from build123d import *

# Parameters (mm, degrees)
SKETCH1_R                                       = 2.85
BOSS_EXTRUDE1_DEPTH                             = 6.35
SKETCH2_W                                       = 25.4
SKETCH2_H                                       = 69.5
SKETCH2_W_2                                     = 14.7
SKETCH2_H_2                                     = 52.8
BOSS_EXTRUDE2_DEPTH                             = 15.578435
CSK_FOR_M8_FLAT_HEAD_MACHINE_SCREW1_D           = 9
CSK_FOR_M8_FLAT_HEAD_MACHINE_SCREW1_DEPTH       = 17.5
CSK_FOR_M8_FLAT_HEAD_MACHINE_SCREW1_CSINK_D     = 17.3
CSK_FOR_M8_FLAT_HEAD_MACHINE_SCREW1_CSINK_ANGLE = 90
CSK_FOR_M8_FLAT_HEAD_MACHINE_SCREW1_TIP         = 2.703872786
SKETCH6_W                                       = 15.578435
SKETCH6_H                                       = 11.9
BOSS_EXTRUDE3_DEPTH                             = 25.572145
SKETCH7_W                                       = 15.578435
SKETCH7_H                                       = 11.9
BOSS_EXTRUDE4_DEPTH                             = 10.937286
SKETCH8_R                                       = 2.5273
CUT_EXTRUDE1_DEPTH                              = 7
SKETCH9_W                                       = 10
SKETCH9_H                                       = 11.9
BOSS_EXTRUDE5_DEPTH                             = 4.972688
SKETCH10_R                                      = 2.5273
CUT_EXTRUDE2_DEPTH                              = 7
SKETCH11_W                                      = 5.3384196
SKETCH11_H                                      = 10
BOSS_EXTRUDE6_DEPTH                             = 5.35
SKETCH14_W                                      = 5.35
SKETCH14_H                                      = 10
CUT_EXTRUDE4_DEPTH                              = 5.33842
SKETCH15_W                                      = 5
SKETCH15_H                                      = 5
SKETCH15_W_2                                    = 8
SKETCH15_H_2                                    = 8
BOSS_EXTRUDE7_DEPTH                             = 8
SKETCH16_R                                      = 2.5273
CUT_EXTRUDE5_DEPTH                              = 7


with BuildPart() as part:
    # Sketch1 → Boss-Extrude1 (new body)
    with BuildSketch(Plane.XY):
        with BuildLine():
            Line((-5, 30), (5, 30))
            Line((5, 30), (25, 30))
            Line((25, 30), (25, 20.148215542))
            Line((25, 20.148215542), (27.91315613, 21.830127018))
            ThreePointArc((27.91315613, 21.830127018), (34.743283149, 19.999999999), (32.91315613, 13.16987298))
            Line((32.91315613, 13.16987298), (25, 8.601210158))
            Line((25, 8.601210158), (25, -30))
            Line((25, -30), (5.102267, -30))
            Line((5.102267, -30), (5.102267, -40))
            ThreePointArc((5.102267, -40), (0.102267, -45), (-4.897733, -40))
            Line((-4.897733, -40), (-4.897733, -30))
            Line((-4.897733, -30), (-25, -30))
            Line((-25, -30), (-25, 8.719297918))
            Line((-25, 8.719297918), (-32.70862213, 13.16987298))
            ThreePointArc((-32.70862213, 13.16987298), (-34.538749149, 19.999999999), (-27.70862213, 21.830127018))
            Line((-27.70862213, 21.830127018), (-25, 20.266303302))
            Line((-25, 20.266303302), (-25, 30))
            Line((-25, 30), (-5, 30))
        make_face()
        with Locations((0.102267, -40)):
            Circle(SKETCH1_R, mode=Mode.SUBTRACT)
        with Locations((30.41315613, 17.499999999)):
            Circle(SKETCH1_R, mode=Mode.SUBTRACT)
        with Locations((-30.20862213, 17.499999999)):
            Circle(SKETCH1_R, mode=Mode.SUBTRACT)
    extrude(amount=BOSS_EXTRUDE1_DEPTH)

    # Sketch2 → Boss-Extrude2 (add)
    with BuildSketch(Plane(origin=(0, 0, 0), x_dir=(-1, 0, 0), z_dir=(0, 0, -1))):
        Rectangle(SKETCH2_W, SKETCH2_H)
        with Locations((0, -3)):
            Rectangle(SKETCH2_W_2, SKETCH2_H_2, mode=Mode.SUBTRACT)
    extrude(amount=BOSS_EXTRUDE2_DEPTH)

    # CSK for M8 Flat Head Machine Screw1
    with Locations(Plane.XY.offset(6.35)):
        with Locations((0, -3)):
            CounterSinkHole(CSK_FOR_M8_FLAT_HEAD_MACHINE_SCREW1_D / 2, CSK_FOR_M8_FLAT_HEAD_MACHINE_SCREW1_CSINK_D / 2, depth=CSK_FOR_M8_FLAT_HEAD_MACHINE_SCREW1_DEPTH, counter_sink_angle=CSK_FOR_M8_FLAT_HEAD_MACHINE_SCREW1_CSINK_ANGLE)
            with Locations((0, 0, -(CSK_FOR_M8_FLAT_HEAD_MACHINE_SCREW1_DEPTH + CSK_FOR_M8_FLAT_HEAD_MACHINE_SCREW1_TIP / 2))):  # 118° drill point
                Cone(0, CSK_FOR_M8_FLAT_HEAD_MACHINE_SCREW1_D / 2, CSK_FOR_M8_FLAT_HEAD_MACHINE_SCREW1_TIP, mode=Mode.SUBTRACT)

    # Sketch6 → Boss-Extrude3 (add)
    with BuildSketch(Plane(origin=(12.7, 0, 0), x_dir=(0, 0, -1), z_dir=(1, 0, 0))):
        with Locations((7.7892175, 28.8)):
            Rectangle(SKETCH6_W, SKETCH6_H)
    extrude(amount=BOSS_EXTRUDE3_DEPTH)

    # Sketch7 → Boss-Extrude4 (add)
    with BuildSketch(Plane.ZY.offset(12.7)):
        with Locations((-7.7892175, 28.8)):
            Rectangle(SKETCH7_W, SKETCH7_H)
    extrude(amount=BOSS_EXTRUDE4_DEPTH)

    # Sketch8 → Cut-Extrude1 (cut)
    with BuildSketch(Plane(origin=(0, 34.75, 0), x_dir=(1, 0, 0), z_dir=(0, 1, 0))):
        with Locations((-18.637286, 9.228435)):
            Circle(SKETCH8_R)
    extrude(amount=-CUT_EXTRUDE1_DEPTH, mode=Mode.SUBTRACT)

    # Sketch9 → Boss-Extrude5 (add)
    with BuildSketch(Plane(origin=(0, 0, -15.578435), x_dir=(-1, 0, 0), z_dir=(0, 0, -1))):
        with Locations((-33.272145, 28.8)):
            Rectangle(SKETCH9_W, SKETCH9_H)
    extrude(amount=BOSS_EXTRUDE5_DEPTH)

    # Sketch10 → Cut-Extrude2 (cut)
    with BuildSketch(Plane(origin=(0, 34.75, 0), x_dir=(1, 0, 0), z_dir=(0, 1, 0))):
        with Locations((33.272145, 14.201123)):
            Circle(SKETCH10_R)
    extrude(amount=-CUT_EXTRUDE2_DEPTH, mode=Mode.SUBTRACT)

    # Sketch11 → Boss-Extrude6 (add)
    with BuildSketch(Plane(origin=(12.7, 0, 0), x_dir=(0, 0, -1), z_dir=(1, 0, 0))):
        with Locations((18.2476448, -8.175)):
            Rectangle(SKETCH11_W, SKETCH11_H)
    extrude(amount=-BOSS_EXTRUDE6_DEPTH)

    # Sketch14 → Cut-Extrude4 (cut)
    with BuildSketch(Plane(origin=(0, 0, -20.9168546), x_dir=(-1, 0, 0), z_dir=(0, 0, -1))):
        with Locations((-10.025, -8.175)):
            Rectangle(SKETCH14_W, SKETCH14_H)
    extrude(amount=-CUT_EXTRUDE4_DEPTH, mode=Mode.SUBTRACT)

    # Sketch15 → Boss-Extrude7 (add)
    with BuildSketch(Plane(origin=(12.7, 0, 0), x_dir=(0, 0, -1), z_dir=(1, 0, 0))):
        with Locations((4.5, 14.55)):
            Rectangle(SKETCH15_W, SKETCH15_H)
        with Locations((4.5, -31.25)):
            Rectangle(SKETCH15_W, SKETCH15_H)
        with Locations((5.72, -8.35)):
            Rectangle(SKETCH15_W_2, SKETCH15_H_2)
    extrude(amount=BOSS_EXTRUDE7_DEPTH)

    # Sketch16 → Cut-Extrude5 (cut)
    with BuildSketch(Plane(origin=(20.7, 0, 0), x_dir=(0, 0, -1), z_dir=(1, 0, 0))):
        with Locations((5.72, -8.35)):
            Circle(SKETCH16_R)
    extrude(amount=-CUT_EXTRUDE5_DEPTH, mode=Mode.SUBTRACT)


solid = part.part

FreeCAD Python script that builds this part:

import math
import FreeCAD as App
import Part
import Sketcher
from FreeCAD import Vector
Q = App.Units.Quantity


def add_polygon(sketch, points):
    """Adds a closed chain of lines whose ends are joined by coincident constraints."""
    first, n = sketch.GeometryCount, len(points)
    for a, b in zip(points, points[1:] + points[:1]):
        sketch.addGeometry(Part.LineSegment(App.Vector(*a, 0), App.Vector(*b, 0)), False)
    for i in range(n):
        sketch.addConstraint(Sketcher.Constraint("Coincident", first + i, 2, first + (i + 1) % n, 1))

doc = App.newDocument("Part")
body = doc.addObject("PartDesign::Body", "Body")

# Sketch on XY plane
sketch1 = body.newObject("Sketcher::SketchObject", "Sketch")
sketch1.AttachmentSupport = (doc.getObject("XY_Plane"), [""])
sketch1.MapMode = "FlatFace"
sketch1.addGeometry([
    Part.LineSegment(Vector(25, 20.1, 0), Vector(25, 30, 0)),  # 0
    Part.LineSegment(Vector(25, 30, 0), Vector(-25, 30, 0)),  # 1
    Part.LineSegment(Vector(-25, 30, 0), Vector(-25, 20.3, 0)),  # 2
    Part.LineSegment(Vector(-25, 20.3, 0), Vector(-27.7, 21.8, 0)),  # 3
    Part.ArcOfCircle(Part.Circle(Vector(-30.2, 17.5, 0), Vector(0, 0, 1), 5), math.radians(60), math.radians(240)),  # 4
    Part.LineSegment(Vector(-32.7, 13.2, 0), Vector(-25, 8.7, 0)),  # 5
    Part.LineSegment(Vector(-25, 8.7, 0), Vector(-25, -30, 0)),  # 6
    Part.LineSegment(Vector(-25, -30, 0), Vector(-4.9, -30, 0)),  # 7
    Part.LineSegment(Vector(-4.9, -30, 0), Vector(-4.9, -40, 0)),  # 8
    Part.ArcOfCircle(Part.Circle(Vector(0.1, -40, 0), Vector(0, 0, 1), 5), math.radians(180), math.radians(360)),  # 9
    Part.LineSegment(Vector(5.1, -40, 0), Vector(5.1, -30, 0)),  # 10
    Part.LineSegment(Vector(5.1, -30, 0), Vector(25, -30, 0)),  # 11
    Part.LineSegment(Vector(25, -30, 0), Vector(25, 8.6, 0)),  # 12
    Part.LineSegment(Vector(25, 8.6, 0), Vector(32.9, 13.2, 0)),  # 13
    Part.ArcOfCircle(Part.Circle(Vector(30.4, 17.5, 0), Vector(0, 0, 1), 5), math.radians(-60), math.radians(120)),  # 14
    Part.LineSegment(Vector(27.9, 21.8, 0), Vector(25, 20.1, 0)),  # 15
    Part.Circle(Vector(0.1, -40, 0), Vector(0, 0, 1), 2.9),  # 16
    Part.Circle(Vector(30.4, 17.5, 0), Vector(0, 0, 1), 2.9),  # 17
    Part.Circle(Vector(-30.2, 17.5, 0), Vector(0, 0, 1), 2.9),  # 18
], False)
sketch1.addConstraint([
    Sketcher.Constraint("Coincident", 0, 2, 1, 1),
    Sketcher.Constraint("Coincident", 1, 2, 2, 1),
    Sketcher.Constraint("Coincident", 2, 2, 3, 1),
    Sketcher.Constraint("Tangent", 3, 2, 4, 1),
    Sketcher.Constraint("Tangent", 4, 2, 5, 1),
    Sketcher.Constraint("Coincident", 5, 2, 6, 1),
    Sketcher.Constraint("Coincident", 6, 2, 7, 1),
    Sketcher.Constraint("Coincident", 7, 2, 8, 1),
    Sketcher.Constraint("Tangent", 8, 2, 9, 1),
    Sketcher.Constraint("Tangent", 9, 2, 10, 1),
    Sketcher.Constraint("Coincident", 10, 2, 11, 1),
    Sketcher.Constraint("Coincident", 11, 2, 12, 1),
    Sketcher.Constraint("Coincident", 12, 2, 13, 1),
    Sketcher.Constraint("Tangent", 13, 2, 14, 1),
    Sketcher.Constraint("Tangent", 14, 2, 15, 1),
    Sketcher.Constraint("Coincident", 15, 2, 0, 1),
    Sketcher.Constraint("Vertical", 0),
    Sketcher.Constraint("Horizontal", 1),
    Sketcher.Constraint("Vertical", 2),
    Sketcher.Constraint("Vertical", 6),
    Sketcher.Constraint("Horizontal", 7),
    Sketcher.Constraint("Vertical", 8),
    Sketcher.Constraint("Vertical", 10),
    Sketcher.Constraint("Horizontal", 11),
    Sketcher.Constraint("Vertical", 12),
    Sketcher.Constraint("Coincident", 16, 3, 9, 3),
    Sketcher.Constraint("Coincident", 17, 3, 14, 3),
    Sketcher.Constraint("Coincident", 18, 3, 4, 3),
    Sketcher.Constraint("Equal", 4, 9),
    Sketcher.Constraint("Equal", 9, 14),
    Sketcher.Constraint("Equal", 16, 17),
    Sketcher.Constraint("Equal", 17, 18),
    Sketcher.Constraint("Symmetric", 0, 2, 6, 2, -1, 1),
    Sketcher.Constraint("Symmetric", 1, 2, 11, 2, -1, 1),
    Sketcher.Constraint("Parallel", 3, 5),
    Sketcher.Constraint("Parallel", 13, 15),
    Sketcher.Constraint("Horizontal", 4, 3, 14, 3),
    Sketcher.Constraint("Horizontal", 4, 2, 13, 2),
    Sketcher.Constraint("Vertical", 2, 2, 5, 2),
    Sketcher.Constraint("Radius", 4, 5.0),
    Sketcher.Constraint("Diameter", 16, 5.7),
    Sketcher.Constraint("DistanceX", 1, 2, 1, 1, 50.0),
    Sketcher.Constraint("DistanceY", 8, 2, 8, 1, 10.0),
    Sketcher.Constraint("Angle", 3, Q("150 deg")),
    Sketcher.Constraint("DistanceY", 9, 3, -1, 1, 40.0),
    Sketcher.Constraint("DistanceY", -1, 1, 4, 3, 17.5),
    Sketcher.Constraint("DistanceY", 12, 1, 12, 2, 38.60121),
    Sketcher.Constraint("Distance", 5, 8.90115),
    Sketcher.Constraint("DistanceX", 7, 1, 7, 2, 20.102267),
])
pad1 = body.newObject("PartDesign::Pad", "Pad")
pad1.Profile = sketch1
pad1.Length = 6.35

# Sketch on XY plane
sketch2 = body.newObject("Sketcher::SketchObject", "Sketch001")
sketch2.AttachmentSupport = (doc.getObject("XY_Plane"), [""])
sketch2.MapMode = "FlatFace"
add_polygon(sketch2, [(13, 35), (13, -35), (-13, -35), (-13, 35)])  # lines 0-3
add_polygon(sketch2, [(-7, -29), (7, -29), (7, 23), (-7, 23)])  # lines 4-7
sketch2.addConstraint([
    Sketcher.Constraint("Vertical", 0),
    Sketcher.Constraint("Horizontal", 1),
    Sketcher.Constraint("Vertical", 2),
    Sketcher.Constraint("Horizontal", 3),
    Sketcher.Constraint("Horizontal", 4),
    Sketcher.Constraint("Vertical", 5),
    Sketcher.Constraint("Horizontal", 6),
    Sketcher.Constraint("Vertical", 7),
    Sketcher.Constraint("Symmetric", 0, 2, 2, 2, -1, 1),
    Sketcher.Constraint("DistanceX", 1, 2, 1, 1, 25.4),
    Sketcher.Constraint("DistanceX", 4, 1, 4, 2, 14.7),
    Sketcher.Constraint("DistanceY", 0, 2, 0, 1, 69.5),
    Sketcher.Constraint("DistanceY", 5, 1, 5, 2, 52.8),
    Sketcher.Constraint("DistanceY", 4, 2, -1, 1, 29.4),
    Sketcher.Constraint("DistanceX", -1, 1, 4, 2, 7.35),
])
pad2 = body.newObject("PartDesign::Pad", "Pad001")
pad2.Profile = sketch2
pad2.Length = 15.578435
pad2.Reversed = True

# Sketch on XY plane
sketch3 = body.newObject("Sketcher::SketchObject", "Sketch002")
sketch3.AttachmentSupport = (doc.getObject("XY_Plane"), [""])
sketch3.MapMode = "FlatFace"
sketch3.AttachmentOffset = App.Placement(Vector(0, 0, 6.35), App.Rotation())
sketch3.addGeometry(Part.Circle(Vector(0, -3, 0), Vector(0, 0, 1), 4.5), False)
sketch3.addConstraint([
    Sketcher.Constraint("PointOnObject", 0, 3, -2),
    Sketcher.Constraint("Diameter", 0, 9.0),
    Sketcher.Constraint("DistanceY", 0, 3, -1, 1, 3.0),
])
doc.recompute()
hole = body.newObject("PartDesign::Hole", "Hole")
hole.Profile = sketch3
hole.ThreadType = "None"
hole.Diameter = 9
hole.DepthType = "Dimension"
hole.Depth = 17.5
hole.DrillPoint = "Angled"
hole.DrillPointAngle = 118
hole.HoleCutType = "Countersink"
hole.HoleCutDiameter = 17.3
hole.HoleCutCountersinkAngle = 90

# Sketch on YZ plane
sketch4 = body.newObject("Sketcher::SketchObject", "Sketch003")
sketch4.AttachmentSupport = (doc.getObject("YZ_Plane"), [""])
sketch4.MapMode = "FlatFace"
sketch4.AttachmentOffset = App.Placement(Vector(0, 0, 12.7), App.Rotation())
add_polygon(sketch4, [(35, 0), (23, 0), (23, -16), (35, -16)])  # lines 0-3
sketch4.addConstraint([
    Sketcher.Constraint("Horizontal", 0),
    Sketcher.Constraint("Vertical", 1),
    Sketcher.Constraint("Horizontal", 2),
    Sketcher.Constraint("Vertical", 3),
    Sketcher.Constraint("PointOnObject", 0, 2, -1),
    Sketcher.Constraint("DistanceX", 0, 2, 0, 1, 11.9),
    Sketcher.Constraint("DistanceX", -1, 1, 0, 2, 22.85),
    Sketcher.Constraint("DistanceY", 1, 2, 1, 1, 15.578435),
])
pad3 = body.newObject("PartDesign::Pad", "Pad002")
pad3.Profile = sketch4
pad3.Length = 25.572145

# Sketch on YZ plane
sketch5 = body.newObject("Sketcher::SketchObject", "Sketch004")
sketch5.AttachmentSupport = (doc.getObject("YZ_Plane"), [""])
sketch5.MapMode = "FlatFace"
sketch5.AttachmentOffset = App.Placement(Vector(0, 0, -12.7), App.Rotation())
add_polygon(sketch5, [(35, -16), (23, -16), (23, 0), (35, 0)])  # lines 0-3
sketch5.addConstraint([
    Sketcher.Constraint("Horizontal", 0),
    Sketcher.Constraint("Vertical", 1),
    Sketcher.Constraint("Horizontal", 2),
    Sketcher.Constraint("Vertical", 3),
    Sketcher.Constraint("PointOnObject", 1, 2, -1),
    Sketcher.Constraint("DistanceX", 0, 2, 0, 1, 11.9),
    Sketcher.Constraint("DistanceX", -1, 1, 0, 2, 22.85),
    Sketcher.Constraint("DistanceY", 1, 1, 1, 2, 15.578435),
])
pad4 = body.newObject("PartDesign::Pad", "Pad003")
pad4.Profile = sketch5
pad4.Length = 10.937286
pad4.Reversed = True

# Sketch on XZ plane
sketch6 = body.newObject("Sketcher::SketchObject", "Sketch005")
sketch6.AttachmentSupport = (doc.getObject("XZ_Plane"), [""])
sketch6.MapMode = "FlatFace"
sketch6.AttachmentOffset = App.Placement(Vector(0, 0, -34.75), App.Rotation())
sketch6.addGeometry(Part.Circle(Vector(-18.6, -9.2, 0), Vector(0, 0, 1), 2.5), False)
sketch6.addConstraint([
    Sketcher.Constraint("Diameter", 0, 5.0546),
    Sketcher.Constraint("DistanceX", 0, 3, -1, 1, 18.637286),
    Sketcher.Constraint("DistanceY", 0, 3, -1, 1, 9.228435),
])
pocket1 = body.newObject("PartDesign::Pocket", "Pocket")
pocket1.Profile = sketch6
pocket1.Length = 7
pocket1.Reversed = True

# Sketch on XY plane
sketch7 = body.newObject("Sketcher::SketchObject", "Sketch006")
sketch7.AttachmentSupport = (doc.getObject("XY_Plane"), [""])
sketch7.MapMode = "FlatFace"
sketch7.AttachmentOffset = App.Placement(Vector(0, 0, -15.578435), App.Rotation())
add_polygon(sketch7, [(38, 35), (38, 23), (28, 23), (28, 35)])  # lines 0-3
sketch7.addConstraint([
    Sketcher.Constraint("Vertical", 0),
    Sketcher.Constraint("Horizontal", 1),
    Sketcher.Constraint("Vertical", 2),
    Sketcher.Constraint("Horizontal", 3),
    Sketcher.Constraint("DistanceX", 1, 2, 1, 1, 10.0),
    Sketcher.Constraint("DistanceY", 0, 2, 0, 1, 11.9),
    Sketcher.Constraint("DistanceY", -1, 1, 0, 2, 22.85),
    Sketcher.Constraint("DistanceX", -1, 1, 0, 2, 38.272145),
])
pad5 = body.newObject("PartDesign::Pad", "Pad004")
pad5.Profile = sketch7
pad5.Length = 4.972688
pad5.Reversed = True

# Sketch on XZ plane
sketch8 = body.newObject("Sketcher::SketchObject", "Sketch007")
sketch8.AttachmentSupport = (doc.getObject("XZ_Plane"), [""])
sketch8.MapMode = "FlatFace"
sketch8.AttachmentOffset = App.Placement(Vector(0, 0, -34.75), App.Rotation())
sketch8.addGeometry(Part.Circle(Vector(33.3, -14.2, 0), Vector(0, 0, 1), 2.5), False)
sketch8.addConstraint([
    Sketcher.Constraint("Diameter", 0, 5.0546),
    Sketcher.Constraint("DistanceX", -1, 1, 0, 3, 33.272145),
    Sketcher.Constraint("DistanceY", 0, 3, -1, 1, 14.201123),
])
pocket2 = body.newObject("PartDesign::Pocket", "Pocket001")
pocket2.Profile = sketch8
pocket2.Length = 7
pocket2.Reversed = True

# Sketch on YZ plane
sketch9 = body.newObject("Sketcher::SketchObject", "Sketch008")
sketch9.AttachmentSupport = (doc.getObject("YZ_Plane"), [""])
sketch9.MapMode = "FlatFace"
sketch9.AttachmentOffset = App.Placement(Vector(0, 0, 12.7), App.Rotation())
add_polygon(sketch9, [(-3, -16), (-13, -16), (-13, -21), (-3, -21)])  # lines 0-3
sketch9.addConstraint([
    Sketcher.Constraint("Horizontal", 0),
    Sketcher.Constraint("Vertical", 1),
    Sketcher.Constraint("Horizontal", 2),
    Sketcher.Constraint("Vertical", 3),
    Sketcher.Constraint("DistanceX", 0, 2, 0, 1, 10.0),
    Sketcher.Constraint("DistanceX", 0, 2, -1, 1, 13.175),
    Sketcher.Constraint("DistanceY", 1, 2, 1, 1, 5.33842),
    Sketcher.Constraint("DistanceY", 0, 2, -1, 1, 15.578435),
])
pad6 = body.newObject("PartDesign::Pad", "Pad005")
pad6.Profile = sketch9
pad6.Length = 5.35
pad6.Reversed = True

# Sketch on XY plane
sketch10 = body.newObject("Sketcher::SketchObject", "Sketch009")
sketch10.AttachmentSupport = (doc.getObject("XY_Plane"), [""])
sketch10.MapMode = "FlatFace"
sketch10.AttachmentOffset = App.Placement(Vector(0, 0, -20.916855), App.Rotation())
add_polygon(sketch10, [(13, -3), (13, -13), (7, -13), (7, -3)])  # lines 0-3
sketch10.addConstraint([
    Sketcher.Constraint("Vertical", 0),
    Sketcher.Constraint("Horizontal", 1),
    Sketcher.Constraint("Vertical", 2),
    Sketcher.Constraint("Horizontal", 3),
    Sketcher.Constraint("DistanceY", 0, 2, 0, 1, 10.0),
    Sketcher.Constraint("DistanceX", 1, 2, 1, 1, 5.35),
    Sketcher.Constraint("DistanceX", -1, 1, 0, 2, 12.7),
    Sketcher.Constraint("DistanceY", 0, 2, -1, 1, 13.175),
])
pocket3 = body.newObject("PartDesign::Pocket", "Pocket002")
pocket3.Profile = sketch10
pocket3.Length = 5.33842
pocket3.Reversed = True

# Sketch on YZ plane
sketch11 = body.newObject("Sketcher::SketchObject", "Sketch010")
sketch11.AttachmentSupport = (doc.getObject("YZ_Plane"), [""])
sketch11.MapMode = "FlatFace"
sketch11.AttachmentOffset = App.Placement(Vector(0, 0, 12.7), App.Rotation())
add_polygon(sketch11, [(17, -2), (12, -2), (12, -7), (17, -7)])  # lines 0-3
add_polygon(sketch11, [(-29, -2), (-34, -2), (-34, -7), (-29, -7)])  # lines 4-7
add_polygon(sketch11, [(-4, -2), (-12, -2), (-12, -10), (-4, -10)])  # lines 8-11
sketch11.addConstraint([
    Sketcher.Constraint("Horizontal", 0),
    Sketcher.Constraint("Vertical", 1),
    Sketcher.Constraint("Horizontal", 2),
    Sketcher.Constraint("Vertical", 3),
    Sketcher.Constraint("Horizontal", 4),
    Sketcher.Constraint("Vertical", 5),
    Sketcher.Constraint("Horizontal", 6),
    Sketcher.Constraint("Vertical", 7),
    Sketcher.Constraint("Horizontal", 8),
    Sketcher.Constraint("Vertical", 9),
    Sketcher.Constraint("Horizontal", 10),
    Sketcher.Constraint("Vertical", 11),
    Sketcher.Constraint("Horizontal", 3, 2, 4, 2),
    Sketcher.Constraint("Horizontal", 2, 2, 5, 2),
    Sketcher.Constraint("Equal", 2, 4),
    Sketcher.Constraint("Equal", 6, 1),
    Sketcher.Constraint("Equal", 10, 9),
    Sketcher.Constraint("DistanceX", 0, 2, 0, 1, 5.0),
    Sketcher.Constraint("DistanceX", 8, 2, 8, 1, 8.0),
    Sketcher.Constraint("DistanceY", 0, 2, -1, 1, 2.0),
    Sketcher.Constraint("DistanceX", 4, 2, 0, 2, 45.8),
    Sketcher.Constraint("DistanceX", 7, 2, 8, 2, 16.4),
    Sketcher.Constraint("DistanceX", -1, 1, 0, 2, 12.05),
    Sketcher.Constraint("DistanceY", 8, 2, -1, 1, 1.72),
])
pad7 = body.newObject("PartDesign::Pad", "Pad006")
pad7.Profile = sketch11
pad7.Length = 8

# Sketch on YZ plane
sketch12 = body.newObject("Sketcher::SketchObject", "Sketch011")
sketch12.AttachmentSupport = (doc.getObject("YZ_Plane"), [""])
sketch12.MapMode = "FlatFace"
sketch12.AttachmentOffset = App.Placement(Vector(0, 0, 20.7), App.Rotation())
sketch12.addGeometry(Part.Circle(Vector(-8.3, -5.7, 0), Vector(0, 0, 1), 2.5), False)
sketch12.addConstraint([
    Sketcher.Constraint("Diameter", 0, 5.0546),
    Sketcher.Constraint("DistanceX", 0, 3, -1, 1, 8.35),
    Sketcher.Constraint("DistanceY", 0, 3, -1, 1, 5.72),
])
pocket4 = body.newObject("PartDesign::Pocket", "Pocket003")
pocket4.Profile = sketch12
pocket4.Length = 7

doc.recompute()
